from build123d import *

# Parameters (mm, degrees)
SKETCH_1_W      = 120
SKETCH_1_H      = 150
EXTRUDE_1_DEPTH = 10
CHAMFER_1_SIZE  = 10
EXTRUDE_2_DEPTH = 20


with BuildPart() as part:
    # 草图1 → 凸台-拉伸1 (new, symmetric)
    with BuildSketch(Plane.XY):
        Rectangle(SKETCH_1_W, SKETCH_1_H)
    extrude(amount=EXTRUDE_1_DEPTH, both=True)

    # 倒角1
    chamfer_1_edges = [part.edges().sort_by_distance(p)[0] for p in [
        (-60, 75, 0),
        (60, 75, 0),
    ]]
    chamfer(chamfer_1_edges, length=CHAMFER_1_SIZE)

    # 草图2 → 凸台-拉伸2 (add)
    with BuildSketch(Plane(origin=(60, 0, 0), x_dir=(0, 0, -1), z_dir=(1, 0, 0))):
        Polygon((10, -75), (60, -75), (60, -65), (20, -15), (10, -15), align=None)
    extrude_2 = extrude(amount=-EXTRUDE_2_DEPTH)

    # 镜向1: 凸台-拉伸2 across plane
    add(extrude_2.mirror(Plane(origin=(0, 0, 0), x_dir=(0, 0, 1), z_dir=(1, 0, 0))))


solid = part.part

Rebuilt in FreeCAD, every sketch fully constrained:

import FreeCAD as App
import Part
import Sketcher

V = App.Vector


def edges_at(feature, points):
    """Names of the edges that pass closest to the given points."""
    edges = feature.Shape.Edges
    near = lambda p: min(range(len(edges)), key=lambda i: edges[i].distToShape(Part.Vertex(*p))[0])
    return sorted({f"Edge{near(p) + 1}" for p in points})

doc = App.newDocument("Part")
params = doc.addObject("Spreadsheet::Sheet", "Params")
for row, (alias, value) in enumerate([
    ("sketch1_width", "120 mm"),
    ("sketch1_height", "150 mm"),
    ("pad1_length", "20 mm"),
    ("chamfer_size", "10 mm"),
    ("sketch2_width", "10 mm"),
    ("sketch2_width2", "60 mm"),
    ("sketch2_height", "50 mm"),
    ("pad2_length", "20 mm"),
], start=1):
    params.set(f"A{row}", alias)
    params.set(f"B{row}", "=" + value)
    params.setAlias(f"B{row}", alias)

body = doc.addObject("PartDesign::Body", "Body")

sketch1 = doc.addObject("Sketcher::SketchObject", "Sketch")
body.addObject(sketch1)
sketch1.AttachmentSupport = (doc.XY_Plane, [""])
sketch1.MapMode = "FlatFace"
sketch1.addGeometry([
    Part.LineSegment(V(-60, 75, 0), V(-60, -75, 0)),
    Part.LineSegment(V(-60, -75, 0), V(60, -75, 0)),
    Part.LineSegment(V(60, -75, 0), V(60, 75, 0)),
    Part.LineSegment(V(60, 75, 0), V(-60, 75, 0)),
], False)
sketch1.addConstraint([
    Sketcher.Constraint("Coincident", 0, 2, 1, 1),
    Sketcher.Constraint("Coincident", 1, 2, 2, 1),
    Sketcher.Constraint("Coincident", 2, 2, 3, 1),
    Sketcher.Constraint("Coincident", 3, 2, 0, 1),
    Sketcher.Constraint("Vertical", 0),
    Sketcher.Constraint("Horizontal", 1),
    Sketcher.Constraint("Vertical", 2),
    Sketcher.Constraint("Horizontal", 3),
    Sketcher.Constraint("Symmetric", 0, 2, 2, 2, -1, 1),
    Sketcher.Constraint("DistanceX", 1, 1, 1, 2, 120.0),
    Sketcher.Constraint("DistanceY", 0, 2, 0, 1, 150.0),
])
sketch1.setExpression("Constraints[9]", "Params.sketch1_width")
sketch1.setExpression("Constraints[10]", "Params.sketch1_height")
pad1 = doc.addObject("PartDesign::Pad", "Pad")
body.addObject(pad1)
pad1.Profile = sketch1
pad1.setExpression("Length", "Params.pad1_length")
pad1.Midplane = True
doc.recompute()

chamfer = doc.addObject("PartDesign::Chamfer", "Chamfer")
body.addObject(chamfer)
chamfer.Base = (pad1, edges_at(pad1, [(-60, 75, 0), (60, 75, 0)]))
chamfer.setExpression("Size", "Params.chamfer_size")

sketch2 = doc.addObject("Sketcher::SketchObject", "Sketch001")
body.addObject(sketch2)
sketch2.AttachmentSupport = (doc.YZ_Plane, [""])
sketch2.MapMode = "FlatFace"
sketch2.AttachmentOffset = App.Placement(V(0, 0, 60), App.Rotation())
sketch2.addGeometry([
    Part.LineSegment(V(-75, -10, 0), V(-75, -60, 0)),
    Part.LineSegment(V(-75, -60, 0), V(-65, -60, 0)),
    Part.LineSegment(V(-65, -60, 0), V(-15, -20, 0)),
    Part.LineSegment(V(-15, -20, 0), V(-15, -10, 0)),
    Part.LineSegment(V(-15, -10, 0), V(-75, -10, 0)),
], False)
sketch2.addConstraint([
    Sketcher.Constraint("Coincident", 0, 2, 1, 1),
    Sketcher.Constraint("Coincident", 1, 2, 2, 1),
    Sketcher.Constraint("Coincident", 2, 2, 3, 1),
    Sketcher.Constraint("Coincident", 3, 2, 4, 1),
    Sketcher.Constraint("Coincident", 4, 2, 0, 1),
    Sketcher.Constraint("Vertical", 0),
    Sketcher.Constraint("Horizontal", 1),
    Sketcher.Constraint("Vertical", 3),
    Sketcher.Constraint("Horizontal", 4),
    Sketcher.Constraint("Equal", 1, 3),
    Sketcher.Constraint("DistanceX", 1, 1, 1, 2, 10.0),
    Sketcher.Constraint("DistanceX", 4, 2, 4, 1, 60.0),
    Sketcher.Constraint("DistanceY", 0, 2, 0, 1, 50.0),
    Sketcher.Constraint("DistanceX", 0, 2, -1, 1, 75.0),
    Sketcher.Constraint("DistanceY", 0, 2, -1, 1, 60.0),
])
sketch2.setExpression("Constraints[10]", "Params.sketch2_width")
sketch2.setExpression("Constraints[11]", "Params.sketch2_width2")
sketch2.setExpression("Constraints[12]", "Params.sketch2_height")
pad2 = doc.addObject("PartDesign::Pad", "Pad001")
body.addObject(pad2)
pad2.Profile = sketch2
pad2.setExpression("Length", "Params.pad2_length")
pad2.Reversed = True
doc.recompute()

mirrored = doc.addObject("PartDesign::Mirrored", "Mirrored")
body.addObject(mirrored)
mirrored.Originals = [pad2]
mirrored.MirrorPlane = (doc.YZ_Plane, [""])
body.Tip = mirrored

doc.recompute()
